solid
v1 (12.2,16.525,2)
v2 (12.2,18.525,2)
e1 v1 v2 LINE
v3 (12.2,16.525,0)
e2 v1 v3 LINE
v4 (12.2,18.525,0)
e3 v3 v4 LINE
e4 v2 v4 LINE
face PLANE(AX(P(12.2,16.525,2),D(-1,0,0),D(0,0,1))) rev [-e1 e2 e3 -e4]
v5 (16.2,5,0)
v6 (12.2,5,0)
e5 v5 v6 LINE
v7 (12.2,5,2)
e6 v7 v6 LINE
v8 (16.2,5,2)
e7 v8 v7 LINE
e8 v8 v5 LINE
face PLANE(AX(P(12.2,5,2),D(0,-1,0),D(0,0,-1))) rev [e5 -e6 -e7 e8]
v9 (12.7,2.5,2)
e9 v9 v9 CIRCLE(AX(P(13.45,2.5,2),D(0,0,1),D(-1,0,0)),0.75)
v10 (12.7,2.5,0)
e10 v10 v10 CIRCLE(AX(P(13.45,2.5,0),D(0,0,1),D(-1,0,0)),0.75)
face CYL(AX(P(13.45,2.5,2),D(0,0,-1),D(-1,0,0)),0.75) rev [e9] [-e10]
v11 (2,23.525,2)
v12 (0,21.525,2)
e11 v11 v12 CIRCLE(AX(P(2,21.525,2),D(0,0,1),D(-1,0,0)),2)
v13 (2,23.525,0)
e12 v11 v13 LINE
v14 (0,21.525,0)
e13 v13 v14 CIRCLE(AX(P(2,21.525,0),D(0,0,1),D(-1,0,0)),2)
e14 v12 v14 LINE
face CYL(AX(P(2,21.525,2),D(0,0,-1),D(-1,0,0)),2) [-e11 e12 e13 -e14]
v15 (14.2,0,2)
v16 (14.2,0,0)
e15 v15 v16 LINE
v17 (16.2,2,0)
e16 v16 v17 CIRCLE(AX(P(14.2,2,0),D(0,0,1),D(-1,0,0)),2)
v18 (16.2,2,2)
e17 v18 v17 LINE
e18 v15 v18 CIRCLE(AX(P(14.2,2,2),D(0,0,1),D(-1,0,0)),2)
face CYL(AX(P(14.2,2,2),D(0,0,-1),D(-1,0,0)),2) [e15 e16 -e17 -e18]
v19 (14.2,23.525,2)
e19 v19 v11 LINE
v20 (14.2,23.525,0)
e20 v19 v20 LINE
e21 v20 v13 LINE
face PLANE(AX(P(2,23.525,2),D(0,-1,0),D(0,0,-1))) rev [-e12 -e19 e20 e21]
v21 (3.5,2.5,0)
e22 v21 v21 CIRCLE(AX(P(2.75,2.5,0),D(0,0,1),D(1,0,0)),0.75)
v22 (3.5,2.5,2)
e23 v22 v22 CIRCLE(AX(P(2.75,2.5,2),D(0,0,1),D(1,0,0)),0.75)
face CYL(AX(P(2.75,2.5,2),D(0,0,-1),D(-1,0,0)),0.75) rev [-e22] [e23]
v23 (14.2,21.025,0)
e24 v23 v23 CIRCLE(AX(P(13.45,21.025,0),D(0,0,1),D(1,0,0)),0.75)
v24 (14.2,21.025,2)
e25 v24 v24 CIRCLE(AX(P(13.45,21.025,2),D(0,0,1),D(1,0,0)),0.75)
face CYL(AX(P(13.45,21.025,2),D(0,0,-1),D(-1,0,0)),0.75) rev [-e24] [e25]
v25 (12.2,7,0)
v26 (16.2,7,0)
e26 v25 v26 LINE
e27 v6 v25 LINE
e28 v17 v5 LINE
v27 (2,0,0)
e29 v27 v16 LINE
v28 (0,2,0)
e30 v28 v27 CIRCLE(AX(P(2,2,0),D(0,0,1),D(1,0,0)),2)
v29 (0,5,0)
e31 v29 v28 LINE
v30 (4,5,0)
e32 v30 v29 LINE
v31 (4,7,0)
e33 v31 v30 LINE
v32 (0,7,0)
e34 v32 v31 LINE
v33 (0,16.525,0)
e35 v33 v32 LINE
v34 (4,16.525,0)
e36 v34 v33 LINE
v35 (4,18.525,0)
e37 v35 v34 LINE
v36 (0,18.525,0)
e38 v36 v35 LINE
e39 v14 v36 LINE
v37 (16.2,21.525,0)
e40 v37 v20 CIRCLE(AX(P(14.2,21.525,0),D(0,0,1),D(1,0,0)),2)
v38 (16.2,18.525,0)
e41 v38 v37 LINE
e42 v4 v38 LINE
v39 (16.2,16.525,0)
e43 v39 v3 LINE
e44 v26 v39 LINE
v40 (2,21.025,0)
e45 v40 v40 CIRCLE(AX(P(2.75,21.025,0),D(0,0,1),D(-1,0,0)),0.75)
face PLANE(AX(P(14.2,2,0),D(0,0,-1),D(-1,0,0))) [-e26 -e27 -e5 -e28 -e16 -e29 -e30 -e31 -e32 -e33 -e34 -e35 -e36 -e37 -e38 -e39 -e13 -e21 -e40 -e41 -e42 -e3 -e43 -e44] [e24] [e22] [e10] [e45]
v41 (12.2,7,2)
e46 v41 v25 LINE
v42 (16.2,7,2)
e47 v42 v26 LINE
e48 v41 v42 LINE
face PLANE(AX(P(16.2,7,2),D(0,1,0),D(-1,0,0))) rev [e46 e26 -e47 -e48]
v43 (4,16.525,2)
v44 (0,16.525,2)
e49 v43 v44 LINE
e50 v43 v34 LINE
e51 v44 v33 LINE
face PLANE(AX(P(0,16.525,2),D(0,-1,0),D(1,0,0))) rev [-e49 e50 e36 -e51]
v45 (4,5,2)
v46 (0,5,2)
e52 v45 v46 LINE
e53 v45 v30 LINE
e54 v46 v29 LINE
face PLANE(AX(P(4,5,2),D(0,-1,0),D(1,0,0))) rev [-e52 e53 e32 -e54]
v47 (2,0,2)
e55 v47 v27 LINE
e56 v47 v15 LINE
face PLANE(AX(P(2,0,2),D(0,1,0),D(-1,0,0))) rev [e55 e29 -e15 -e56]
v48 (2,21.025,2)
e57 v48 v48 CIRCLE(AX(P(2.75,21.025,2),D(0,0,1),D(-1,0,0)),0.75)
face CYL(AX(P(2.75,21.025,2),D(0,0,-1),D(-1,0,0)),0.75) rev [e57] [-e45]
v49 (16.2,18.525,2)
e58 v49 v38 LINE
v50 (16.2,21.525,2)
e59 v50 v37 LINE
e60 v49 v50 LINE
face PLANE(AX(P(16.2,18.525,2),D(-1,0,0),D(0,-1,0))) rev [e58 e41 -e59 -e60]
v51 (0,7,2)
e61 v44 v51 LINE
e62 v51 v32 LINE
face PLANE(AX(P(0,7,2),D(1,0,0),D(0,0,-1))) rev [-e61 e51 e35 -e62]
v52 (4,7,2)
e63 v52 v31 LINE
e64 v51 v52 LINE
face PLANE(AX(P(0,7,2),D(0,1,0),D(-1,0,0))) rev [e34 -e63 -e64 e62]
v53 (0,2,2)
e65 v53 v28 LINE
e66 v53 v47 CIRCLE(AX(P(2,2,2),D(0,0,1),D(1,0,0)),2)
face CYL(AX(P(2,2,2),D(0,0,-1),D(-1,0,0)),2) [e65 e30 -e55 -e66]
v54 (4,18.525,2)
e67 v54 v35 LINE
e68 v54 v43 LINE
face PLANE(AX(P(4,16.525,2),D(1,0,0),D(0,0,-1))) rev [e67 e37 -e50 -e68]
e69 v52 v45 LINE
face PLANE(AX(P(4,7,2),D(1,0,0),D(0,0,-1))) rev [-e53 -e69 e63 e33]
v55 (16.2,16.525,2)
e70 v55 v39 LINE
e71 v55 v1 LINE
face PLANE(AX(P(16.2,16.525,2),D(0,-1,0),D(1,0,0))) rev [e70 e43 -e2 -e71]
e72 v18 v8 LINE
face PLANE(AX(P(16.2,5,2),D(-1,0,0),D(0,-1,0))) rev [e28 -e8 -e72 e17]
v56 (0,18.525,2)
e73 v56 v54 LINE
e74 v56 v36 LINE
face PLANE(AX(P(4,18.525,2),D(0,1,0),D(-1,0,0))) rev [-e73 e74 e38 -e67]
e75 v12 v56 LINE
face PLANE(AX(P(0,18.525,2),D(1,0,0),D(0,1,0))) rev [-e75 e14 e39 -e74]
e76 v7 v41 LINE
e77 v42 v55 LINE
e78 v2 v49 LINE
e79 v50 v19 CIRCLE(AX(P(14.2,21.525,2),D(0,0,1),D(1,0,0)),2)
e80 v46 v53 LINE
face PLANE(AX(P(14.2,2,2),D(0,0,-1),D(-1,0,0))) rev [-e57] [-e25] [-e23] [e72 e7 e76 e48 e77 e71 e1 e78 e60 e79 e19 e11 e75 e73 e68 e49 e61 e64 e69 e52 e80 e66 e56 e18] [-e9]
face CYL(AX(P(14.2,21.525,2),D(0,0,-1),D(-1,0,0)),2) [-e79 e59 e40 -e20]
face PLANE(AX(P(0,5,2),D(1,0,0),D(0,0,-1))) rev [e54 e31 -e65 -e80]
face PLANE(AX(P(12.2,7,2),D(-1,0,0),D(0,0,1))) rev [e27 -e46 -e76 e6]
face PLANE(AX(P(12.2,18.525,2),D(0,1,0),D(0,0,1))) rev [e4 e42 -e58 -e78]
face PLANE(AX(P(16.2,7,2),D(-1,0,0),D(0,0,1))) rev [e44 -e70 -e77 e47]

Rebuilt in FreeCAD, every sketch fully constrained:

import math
import FreeCAD as App
import Part
import Sketcher
from FreeCAD import Vector

doc = App.newDocument("Part")
params = doc.addObject("Spreadsheet::Sheet", "Params")
for row, (alias, value) in enumerate([
    ("sketch1_radius", "2 mm"),
    ("sketch1_diameter", "1.5 mm"),
    ("sketch1_width", "4 mm"),
    ("sketch1_height", "3 mm"),
    ("sketch1_height2", "2 mm"),
    ("pad1_length", "2 mm"),
], start=1):
    params.set(f"A{row}", alias)
    params.set(f"B{row}", "=" + value)
    params.setAlias(f"B{row}", alias)

body = doc.addObject("PartDesign::Body", "Body")

# Sketch on XY plane
sketch1 = body.newObject("Sketcher::SketchObject", "Sketch")
sketch1.AttachmentSupport = (doc.getObject("XY_Plane"), [""])
sketch1.MapMode = "FlatFace"
sketch1.addGeometry([
    Part.LineSegment(Vector(16.2, 2, 0), Vector(16.2, 5, 0)),  # 0
    Part.LineSegment(Vector(16.2, 5, 0), Vector(12.2, 5, 0)),  # 1
    Part.LineSegment(Vector(12.2, 5, 0), Vector(12.2, 7, 0)),  # 2
    Part.LineSegment(Vector(12.2, 7, 0), Vector(16.2, 7, 0)),  # 3
    Part.LineSegment(Vector(16.2, 7, 0), Vector(16.2, 16.5, 0)),  # 4
    Part.LineSegment(Vector(16.2, 16.5, 0), Vector(12.2, 16.5, 0)),  # 5
    Part.LineSegment(Vector(12.2, 16.5, 0), Vector(12.2, 18.5, 0)),  # 6
    Part.LineSegment(Vector(12.2, 18.5, 0), Vector(16.2, 18.5, 0)),  # 7
    Part.LineSegment(Vector(16.2, 18.5, 0), Vector(16.2, 21.5, 0)),  # 8
    Part.ArcOfCircle(Part.Circle(Vector(14.2, 21.5, 0), Vector(0, 0, 1), 2), math.radians(0), math.radians(90)),  # 9
    Part.LineSegment(Vector(14.2, 23.5, 0), Vector(2, 23.5, 0)),  # 10
    Part.ArcOfCircle(Part.Circle(Vector(2, 21.5, 0), Vector(0, 0, 1), 2), math.radians(90), math.radians(180)),  # 11
    Part.LineSegment(Vector(0, 21.5, 0), Vector(0, 18.5, 0)),  # 12
    Part.LineSegment(Vector(0, 18.5, 0), Vector(4, 18.5, 0)),  # 13
    Part.LineSegment(Vector(4, 18.5, 0), Vector(4, 16.5, 0)),  # 14
    Part.LineSegment(Vector(4, 16.5, 0), Vector(0, 16.5, 0)),  # 15
    Part.LineSegment(Vector(0, 16.5, 0), Vector(0, 7, 0)),  # 16
    Part.LineSegment(Vector(0, 7, 0), Vector(4, 7, 0)),  # 17
    Part.LineSegment(Vector(4, 7, 0), Vector(4, 5, 0)),  # 18
    Part.LineSegment(Vector(4, 5, 0), Vector(0, 5, 0)),  # 19
    Part.LineSegment(Vector(0, 5, 0), Vector(0, 2, 0)),  # 20
    Part.ArcOfCircle(Part.Circle(Vector(2, 2, 0), Vector(0, 0, 1), 2), math.radians(-180), math.radians(-90)),  # 21
    Part.LineSegment(Vector(2, 0, 0), Vector(14.2, 0, 0)),  # 22
    Part.ArcOfCircle(Part.Circle(Vector(14.2, 2, 0), Vector(0, 0, 1), 2), math.radians(-90), math.radians(0)),  # 23
    Part.Circle(Vector(13.4, 2.5, 0), Vector(0, 0, 1), 0.8),  # 24
    Part.Circle(Vector(2.8, 2.5, 0), Vector(0, 0, 1), 0.8),  # 25
    Part.Circle(Vector(13.4, 21, 0), Vector(0, 0, 1), 0.8),  # 26
    Part.Circle(Vector(2.8, 21, 0), Vector(0, 0, 1), 0.8),  # 27
], False)
sketch1.addConstraint([
    Sketcher.Constraint("Coincident", 0, 2, 1, 1),
    Sketcher.Constraint("Coincident", 1, 2, 2, 1),
    Sketcher.Constraint("Coincident", 2, 2, 3, 1),
    Sketcher.Constraint("Coincident", 3, 2, 4, 1),
    Sketcher.Constraint("Coincident", 4, 2, 5, 1),
    Sketcher.Constraint("Coincident", 5, 2, 6, 1),
    Sketcher.Constraint("Coincident", 6, 2, 7, 1),
    Sketcher.Constraint("Coincident", 7, 2, 8, 1),
    Sketcher.Constraint("Tangent", 8, 2, 9, 1),
    Sketcher.Constraint("Tangent", 9, 2, 10, 1),
    Sketcher.Constraint("Tangent", 10, 2, 11, 1),
    Sketcher.Constraint("Tangent", 11, 2, 12, 1),
    Sketcher.Constraint("Coincident", 12, 2, 13, 1),
    Sketcher.Constraint("Coincident", 13, 2, 14, 1),
    Sketcher.Constraint("Coincident", 14, 2, 15, 1),
    Sketcher.Constraint("Coincident", 15, 2, 16, 1),
    Sketcher.Constraint("Coincident", 16, 2, 17, 1),
    Sketcher.Constraint("Coincident", 17, 2, 18, 1),
    Sketcher.Constraint("Coincident", 18, 2, 19, 1),
    Sketcher.Constraint("Coincident", 19, 2, 20, 1),
    Sketcher.Constraint("Tangent", 20, 2, 21, 1),
    Sketcher.Constraint("Tangent", 21, 2, 22, 1),
    Sketcher.Constraint("Tangent", 22, 2, 23, 1),
    Sketcher.Constraint("Tangent", 23, 2, 0, 1),
    Sketcher.Constraint("Vertical", 0),
    Sketcher.Constraint("Horizontal", 1),
    Sketcher.Constraint("Vertical", 2),
    Sketcher.Constraint("Horizontal", 3),
    Sketcher.Constraint("Vertical", 4),
    Sketcher.Constraint("Horizontal", 5),
    Sketcher.Constraint("Vertical", 6),
    Sketcher.Constraint("Horizontal", 7),
    Sketcher.Constraint("Vertical", 8),
    Sketcher.Constraint("Horizontal", 10),
    Sketcher.Constraint("Vertical", 12),
    Sketcher.Constraint("Horizontal", 13),
    Sketcher.Constraint("Vertical", 14),
    Sketcher.Constraint("Horizontal", 15),
    Sketcher.Constraint("Vertical", 16),
    Sketcher.Constraint("Horizontal", 17),
    Sketcher.Constraint("Vertical", 18),
    Sketcher.Constraint("Horizontal", 19),
    Sketcher.Constraint("Vertical", 20),
    Sketcher.Constraint("Horizontal", 22),
    Sketcher.Constraint("Equal", 9, 11),
    Sketcher.Constraint("Equal", 11, 21),
    Sketcher.Constraint("Equal", 21, 23),
    Sketcher.Constraint("Equal", 24, 25),
    Sketcher.Constraint("Equal", 25, 26),
    Sketcher.Constraint("Equal", 26, 27),
    Sketcher.Constraint("PointOnObject", 11, 2, -2),
    Sketcher.Constraint("PointOnObject", 15, 2, -2),
    Sketcher.Constraint("PointOnObject", 19, 2, -2),
    Sketcher.Constraint("PointOnObject", 21, 2, -1),
    Sketcher.Constraint("Horizontal", 24, 3, 25, 3),
    Sketcher.Constraint("Horizontal", 26, 3, 27, 3),
    Sketcher.Constraint("Horizontal", 7, 2, 12, 2),
    Sketcher.Constraint("Horizontal", 5, 2, 14, 2),
    Sketcher.Constraint("Horizontal", 3, 2, 16, 2),
    Sketcher.Constraint("Horizontal", 1, 2, 18, 2),
    Sketcher.Constraint("Vertical", 9, 3, 23, 3),
    Sketcher.Constraint("Vertical", 24, 3, 26, 3),
    Sketcher.Constraint("Vertical", 25, 3, 27, 3),
    Sketcher.Constraint("Vertical", 0, 2, 3, 2),
    Sketcher.Constraint("Vertical", 2, 2, 5, 2),
    Sketcher.Constraint("Vertical", 14, 2, 17, 2),
    Sketcher.Constraint("Equal", 7, 13),
    Sketcher.Constraint("Equal", 2, 6),
    Sketcher.Constraint("Equal", 0, 8),
    Sketcher.Constraint("Radius", 9, 2.0),
    Sketcher.Constraint("Diameter", 24, 1.5),
    Sketcher.Constraint("DistanceX", 1, 2, 1, 1, 4.0),
    Sketcher.Constraint("DistanceY", 0, 1, 0, 2, 3.0),
    Sketcher.Constraint("DistanceY", 2, 1, 2, 2, 2.0),
    Sketcher.Constraint("DistanceX", 10, 2, 10, 1, 12.2),
    Sketcher.Constraint("DistanceY", -1, 1, 24, 3, 2.5),
    Sketcher.Constraint("DistanceX", 25, 3, 24, 3, 10.7),
    Sketcher.Constraint("DistanceY", 26, 3, 9, 3, 0.5),
    Sketcher.Constraint("DistanceY", 4, 1, 4, 2, 9.525),
    Sketcher.Constraint("DistanceX", -1, 1, 24, 3, 13.45),
])
sketch1.setExpression("Constraints[69]", "Params.sketch1_radius")
sketch1.setExpression("Constraints[70]", "Params.sketch1_diameter")
sketch1.setExpression("Constraints[71]", "Params.sketch1_width")
sketch1.setExpression("Constraints[72]", "Params.sketch1_height")
sketch1.setExpression("Constraints[73]", "Params.sketch1_height2")
pad1 = body.newObject("PartDesign::Pad", "Pad")
pad1.Profile = sketch1
pad1.setExpression("Length", "Params.pad1_length")

doc.recompute()
